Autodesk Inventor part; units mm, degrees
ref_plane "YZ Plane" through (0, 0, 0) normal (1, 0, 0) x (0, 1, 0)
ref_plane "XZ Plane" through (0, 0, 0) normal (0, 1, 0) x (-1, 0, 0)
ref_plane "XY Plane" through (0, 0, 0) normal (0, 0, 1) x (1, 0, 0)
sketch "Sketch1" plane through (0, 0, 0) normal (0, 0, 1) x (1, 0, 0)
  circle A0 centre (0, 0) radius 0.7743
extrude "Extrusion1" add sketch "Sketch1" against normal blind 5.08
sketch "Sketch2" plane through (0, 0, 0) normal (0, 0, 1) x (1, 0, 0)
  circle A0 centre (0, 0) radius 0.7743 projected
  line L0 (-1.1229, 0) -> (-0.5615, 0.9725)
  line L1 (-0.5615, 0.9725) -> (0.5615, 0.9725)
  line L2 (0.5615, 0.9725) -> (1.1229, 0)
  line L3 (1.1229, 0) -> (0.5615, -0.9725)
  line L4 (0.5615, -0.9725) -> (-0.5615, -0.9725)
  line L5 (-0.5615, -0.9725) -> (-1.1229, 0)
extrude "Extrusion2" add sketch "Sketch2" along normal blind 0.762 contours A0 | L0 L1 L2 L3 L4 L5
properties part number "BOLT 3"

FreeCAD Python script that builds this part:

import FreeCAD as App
import Part
import Sketcher
from FreeCAD import Vector
Q = App.Units.Quantity


def add_polygon(sketch, points):
    """Adds a closed chain of lines whose ends are joined by coincident constraints."""
    first, n = sketch.GeometryCount, len(points)
    for a, b in zip(points, points[1:] + points[:1]):
        sketch.addGeometry(Part.LineSegment(App.Vector(*a, 0), App.Vector(*b, 0)), False)
    for i in range(n):
        sketch.addConstraint(Sketcher.Constraint("Coincident", first + i, 2, first + (i + 1) % n, 1))

doc = App.newDocument("Part")
body = doc.addObject("PartDesign::Body", "Body")

# Sketch on XY plane
sketch1 = body.newObject("Sketcher::SketchObject", "Sketch")
sketch1.AttachmentSupport = (doc.getObject("XY_Plane"), [""])
sketch1.MapMode = "FlatFace"
sketch1.addGeometry(Part.Circle(Vector(0, 0, 0), Vector(0, 0, 1), 0.8), False)
sketch1.addConstraint([
    Sketcher.Constraint("Coincident", 0, 3, -1, 1),
    Sketcher.Constraint("Diameter", 0, 1.5486),
])
pad1 = body.newObject("PartDesign::Pad", "Pad")
pad1.Profile = sketch1
pad1.Length = Q("0.2 in")
pad1.Reversed = True

# Sketch on XY plane
sketch2 = body.newObject("Sketcher::SketchObject", "Sketch001")
sketch2.AttachmentSupport = (doc.getObject("XY_Plane"), [""])
sketch2.MapMode = "FlatFace"
add_polygon(sketch2, [(-0.6, 1), (-1.1, 0), (-0.6, -1), (0.6, -1), (1.1, 0), (0.6, 1)])  # lines 0-5
sketch2.addConstraint([
    Sketcher.Constraint("Horizontal", 2),
    Sketcher.Constraint("Horizontal", 5),
    Sketcher.Constraint("Symmetric", 0, 2, 3, 2, -1, 1),
    Sketcher.Constraint("Symmetric", 1, 2, 4, 2, -1, 1),
    Sketcher.Constraint("PointOnObject", 0, 2, -1),
    Sketcher.Constraint("Parallel", 0, 3),
    Sketcher.Constraint("Vertical", 2, 2, 4, 2),
    Sketcher.Constraint("Distance", 0, Q("0.0442 in")),
    Sketcher.Constraint("DistanceX", 2, 1, 2, 2, 1.123),
    Sketcher.Constraint("DistanceX", 0, 2, -1, 1, Q("0.0442 in")),
])
pad2 = body.newObject("PartDesign::Pad", "Pad001")
pad2.Profile = sketch2
pad2.Length = Q("0.03 in")

doc.recompute()
